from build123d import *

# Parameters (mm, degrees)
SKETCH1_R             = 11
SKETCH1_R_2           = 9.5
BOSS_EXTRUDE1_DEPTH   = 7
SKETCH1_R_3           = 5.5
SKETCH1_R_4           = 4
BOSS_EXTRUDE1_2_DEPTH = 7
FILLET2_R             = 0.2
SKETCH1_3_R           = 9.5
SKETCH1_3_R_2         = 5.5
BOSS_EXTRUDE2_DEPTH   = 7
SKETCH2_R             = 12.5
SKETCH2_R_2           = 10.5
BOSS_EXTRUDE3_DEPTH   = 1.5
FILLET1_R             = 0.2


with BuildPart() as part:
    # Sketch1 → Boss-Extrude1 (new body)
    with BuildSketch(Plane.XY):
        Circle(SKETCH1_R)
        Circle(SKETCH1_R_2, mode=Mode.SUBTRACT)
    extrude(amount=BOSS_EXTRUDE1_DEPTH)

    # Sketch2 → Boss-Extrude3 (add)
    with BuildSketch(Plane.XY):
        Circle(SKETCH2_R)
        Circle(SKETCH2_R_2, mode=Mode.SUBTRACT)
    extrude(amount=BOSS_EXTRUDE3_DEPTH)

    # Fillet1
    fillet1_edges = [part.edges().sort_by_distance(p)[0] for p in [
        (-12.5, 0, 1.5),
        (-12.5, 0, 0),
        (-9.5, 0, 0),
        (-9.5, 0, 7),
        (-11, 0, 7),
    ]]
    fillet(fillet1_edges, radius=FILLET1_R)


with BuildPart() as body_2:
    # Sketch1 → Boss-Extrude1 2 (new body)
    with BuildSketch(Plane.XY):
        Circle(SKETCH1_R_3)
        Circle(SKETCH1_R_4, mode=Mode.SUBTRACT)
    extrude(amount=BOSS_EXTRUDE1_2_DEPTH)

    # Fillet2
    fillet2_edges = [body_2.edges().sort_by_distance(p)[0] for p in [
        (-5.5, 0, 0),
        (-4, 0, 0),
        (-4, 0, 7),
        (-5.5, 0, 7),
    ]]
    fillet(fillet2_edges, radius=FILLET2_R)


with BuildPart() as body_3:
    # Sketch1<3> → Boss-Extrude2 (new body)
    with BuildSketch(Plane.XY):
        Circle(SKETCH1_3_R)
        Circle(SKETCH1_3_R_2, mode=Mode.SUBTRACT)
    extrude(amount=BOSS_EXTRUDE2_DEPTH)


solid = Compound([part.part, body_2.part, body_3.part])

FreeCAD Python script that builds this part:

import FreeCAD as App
import Part
import Sketcher

V = App.Vector
Q = App.Units.Quantity


def edges_at(feature, points):
    """Names of the edges that pass closest to the given points."""
    edges = feature.Shape.Edges
    near = lambda p: min(range(len(edges)), key=lambda i: edges[i].distToShape(Part.Vertex(*p))[0])
    return sorted({f"Edge{near(p) + 1}" for p in points})

doc = App.newDocument("Part")
params = doc.addObject("Spreadsheet::Sheet", "Params")
for row, (alias, value) in enumerate([
    ("sketch1_diameter", "22 mm"),
    ("sketch1_diameter2", "19 mm"),
    ("pad1_length", "7 mm"),
    ("sketch2_diameter", "25 mm"),
    ("sketch2_diameter2", "21 mm"),
    ("pad2_length", "1.5 mm"),
    ("fillet_radius", "0.2 mm"),
    ("sketch3_diameter", "11 mm"),
    ("sketch3_diameter2", "8 mm"),
    ("pad3_length", "7 mm"),
    ("fillet2_radius", "0.2 mm"),
    ("sketch4_diameter", "19 mm"),
    ("sketch4_diameter2", "11 mm"),
    ("pad4_length", "7 mm"),
], start=1):
    params.set(f"A{row}", alias)
    params.set(f"B{row}", "=" + value)
    params.setAlias(f"B{row}", alias)

body = doc.addObject("PartDesign::Body", "Body")

sketch1 = body.newObject("Sketcher::SketchObject", "Sketch")
sketch1.AttachmentSupport = (doc.getObject("XY_Plane"), [""])
sketch1.MapMode = "FlatFace"
sketch1.addGeometry([
    Part.Circle(V(0, 0, 0), V(0, 0, 1), 11),
    Part.Circle(V(0, 0, 0), V(0, 0, 1), 10),
], False)
sketch1.addConstraint([
    Sketcher.Constraint("Coincident", 0, 3, -1, 1),
    Sketcher.Constraint("Coincident", 1, 3, -1, 1),
    Sketcher.Constraint("Diameter", 0, Q("22 mm")),
    Sketcher.Constraint("Diameter", 1, Q("19 mm")),
])
sketch1.setExpression("Constraints[2]", "Params.sketch1_diameter")
sketch1.setExpression("Constraints[3]", "Params.sketch1_diameter2")
pad1 = body.newObject("PartDesign::Pad", "Pad")
pad1.Profile = sketch1
pad1.setExpression("Length", "Params.pad1_length")

sketch2 = body.newObject("Sketcher::SketchObject", "Sketch001")
sketch2.AttachmentSupport = (doc.getObject("XY_Plane"), [""])
sketch2.MapMode = "FlatFace"
sketch2.addGeometry([
    Part.Circle(V(0, 0, 0), V(0, 0, 1), 12),
    Part.Circle(V(0, 0, 0), V(0, 0, 1), 10),
], False)
sketch2.addConstraint([
    Sketcher.Constraint("Coincident", 0, 3, -1, 1),
    Sketcher.Constraint("Coincident", 1, 3, -1, 1),
    Sketcher.Constraint("Diameter", 0, Q("25 mm")),
    Sketcher.Constraint("Diameter", 1, Q("21 mm")),
])
sketch2.setExpression("Constraints[2]", "Params.sketch2_diameter")
sketch2.setExpression("Constraints[3]", "Params.sketch2_diameter2")
pad2 = body.newObject("PartDesign::Pad", "Pad001")
pad2.Profile = sketch2
pad2.setExpression("Length", "Params.pad2_length")
doc.recompute()

fillet = body.newObject("PartDesign::Fillet", "Fillet")
fillet.Base = (pad2, edges_at(pad2, [
    (-12.5, 0, 1.5),
    (-12.5, 0, 0),
    (-9.5, 0, 0),
    (-9.5, 0, 7),
    (-11, 0, 7),
]))
fillet.setExpression("Radius", "Params.fillet_radius")
body2 = doc.addObject("PartDesign::Body", "Body001")

sketch3 = body2.newObject("Sketcher::SketchObject", "Sketch002")
sketch3.AttachmentSupport = (doc.getObject("XY_Plane001"), [""])
sketch3.MapMode = "FlatFace"
sketch3.addGeometry([
    Part.Circle(V(0, 0, 0), V(0, 0, 1), 5.5),
    Part.Circle(V(0, 0, 0), V(0, 0, 1), 4),
], False)
sketch3.addConstraint([
    Sketcher.Constraint("Coincident", 0, 3, -1, 1),
    Sketcher.Constraint("Coincident", 1, 3, -1, 1),
    Sketcher.Constraint("Diameter", 0, Q("11 mm")),
    Sketcher.Constraint("Diameter", 1, Q("8 mm")),
])
sketch3.setExpression("Constraints[2]", "Params.sketch3_diameter")
sketch3.setExpression("Constraints[3]", "Params.sketch3_diameter2")
pad3 = body2.newObject("PartDesign::Pad", "Pad002")
pad3.Profile = sketch3
pad3.setExpression("Length", "Params.pad3_length")
doc.recompute()

fillet2 = body2.newObject("PartDesign::Fillet", "Fillet001")
fillet2.Base = (pad3, edges_at(pad3, [
    (-5.5, 0, 0),
    (-4, 0, 0),
    (-4, 0, 7),
    (-5.5, 0, 7),
]))
fillet2.setExpression("Radius", "Params.fillet2_radius")
body3 = doc.addObject("PartDesign::Body", "Body002")

sketch4 = body3.newObject("Sketcher::SketchObject", "Sketch003")
sketch4.AttachmentSupport = (doc.getObject("XY_Plane002"), [""])
sketch4.MapMode = "FlatFace"
sketch4.addGeometry([
    Part.Circle(V(0, 0, 0), V(0, 0, 1), 10),
    Part.Circle(V(0, 0, 0), V(0, 0, 1), 6),
], False)
sketch4.addConstraint([
    Sketcher.Constraint("Coincident", 0, 3, -1, 1),
    Sketcher.Constraint("Coincident", 1, 3, -1, 1),
    Sketcher.Constraint("Diameter", 0, Q("19 mm")),
    Sketcher.Constraint("Diameter", 1, Q("11 mm")),
])
sketch4.setExpression("Constraints[2]", "Params.sketch4_diameter")
sketch4.setExpression("Constraints[3]", "Params.sketch4_diameter2")
pad4 = body3.newObject("PartDesign::Pad", "Pad003")
pad4.Profile = sketch4
pad4.setExpression("Length", "Params.pad4_length")

doc.recompute()
